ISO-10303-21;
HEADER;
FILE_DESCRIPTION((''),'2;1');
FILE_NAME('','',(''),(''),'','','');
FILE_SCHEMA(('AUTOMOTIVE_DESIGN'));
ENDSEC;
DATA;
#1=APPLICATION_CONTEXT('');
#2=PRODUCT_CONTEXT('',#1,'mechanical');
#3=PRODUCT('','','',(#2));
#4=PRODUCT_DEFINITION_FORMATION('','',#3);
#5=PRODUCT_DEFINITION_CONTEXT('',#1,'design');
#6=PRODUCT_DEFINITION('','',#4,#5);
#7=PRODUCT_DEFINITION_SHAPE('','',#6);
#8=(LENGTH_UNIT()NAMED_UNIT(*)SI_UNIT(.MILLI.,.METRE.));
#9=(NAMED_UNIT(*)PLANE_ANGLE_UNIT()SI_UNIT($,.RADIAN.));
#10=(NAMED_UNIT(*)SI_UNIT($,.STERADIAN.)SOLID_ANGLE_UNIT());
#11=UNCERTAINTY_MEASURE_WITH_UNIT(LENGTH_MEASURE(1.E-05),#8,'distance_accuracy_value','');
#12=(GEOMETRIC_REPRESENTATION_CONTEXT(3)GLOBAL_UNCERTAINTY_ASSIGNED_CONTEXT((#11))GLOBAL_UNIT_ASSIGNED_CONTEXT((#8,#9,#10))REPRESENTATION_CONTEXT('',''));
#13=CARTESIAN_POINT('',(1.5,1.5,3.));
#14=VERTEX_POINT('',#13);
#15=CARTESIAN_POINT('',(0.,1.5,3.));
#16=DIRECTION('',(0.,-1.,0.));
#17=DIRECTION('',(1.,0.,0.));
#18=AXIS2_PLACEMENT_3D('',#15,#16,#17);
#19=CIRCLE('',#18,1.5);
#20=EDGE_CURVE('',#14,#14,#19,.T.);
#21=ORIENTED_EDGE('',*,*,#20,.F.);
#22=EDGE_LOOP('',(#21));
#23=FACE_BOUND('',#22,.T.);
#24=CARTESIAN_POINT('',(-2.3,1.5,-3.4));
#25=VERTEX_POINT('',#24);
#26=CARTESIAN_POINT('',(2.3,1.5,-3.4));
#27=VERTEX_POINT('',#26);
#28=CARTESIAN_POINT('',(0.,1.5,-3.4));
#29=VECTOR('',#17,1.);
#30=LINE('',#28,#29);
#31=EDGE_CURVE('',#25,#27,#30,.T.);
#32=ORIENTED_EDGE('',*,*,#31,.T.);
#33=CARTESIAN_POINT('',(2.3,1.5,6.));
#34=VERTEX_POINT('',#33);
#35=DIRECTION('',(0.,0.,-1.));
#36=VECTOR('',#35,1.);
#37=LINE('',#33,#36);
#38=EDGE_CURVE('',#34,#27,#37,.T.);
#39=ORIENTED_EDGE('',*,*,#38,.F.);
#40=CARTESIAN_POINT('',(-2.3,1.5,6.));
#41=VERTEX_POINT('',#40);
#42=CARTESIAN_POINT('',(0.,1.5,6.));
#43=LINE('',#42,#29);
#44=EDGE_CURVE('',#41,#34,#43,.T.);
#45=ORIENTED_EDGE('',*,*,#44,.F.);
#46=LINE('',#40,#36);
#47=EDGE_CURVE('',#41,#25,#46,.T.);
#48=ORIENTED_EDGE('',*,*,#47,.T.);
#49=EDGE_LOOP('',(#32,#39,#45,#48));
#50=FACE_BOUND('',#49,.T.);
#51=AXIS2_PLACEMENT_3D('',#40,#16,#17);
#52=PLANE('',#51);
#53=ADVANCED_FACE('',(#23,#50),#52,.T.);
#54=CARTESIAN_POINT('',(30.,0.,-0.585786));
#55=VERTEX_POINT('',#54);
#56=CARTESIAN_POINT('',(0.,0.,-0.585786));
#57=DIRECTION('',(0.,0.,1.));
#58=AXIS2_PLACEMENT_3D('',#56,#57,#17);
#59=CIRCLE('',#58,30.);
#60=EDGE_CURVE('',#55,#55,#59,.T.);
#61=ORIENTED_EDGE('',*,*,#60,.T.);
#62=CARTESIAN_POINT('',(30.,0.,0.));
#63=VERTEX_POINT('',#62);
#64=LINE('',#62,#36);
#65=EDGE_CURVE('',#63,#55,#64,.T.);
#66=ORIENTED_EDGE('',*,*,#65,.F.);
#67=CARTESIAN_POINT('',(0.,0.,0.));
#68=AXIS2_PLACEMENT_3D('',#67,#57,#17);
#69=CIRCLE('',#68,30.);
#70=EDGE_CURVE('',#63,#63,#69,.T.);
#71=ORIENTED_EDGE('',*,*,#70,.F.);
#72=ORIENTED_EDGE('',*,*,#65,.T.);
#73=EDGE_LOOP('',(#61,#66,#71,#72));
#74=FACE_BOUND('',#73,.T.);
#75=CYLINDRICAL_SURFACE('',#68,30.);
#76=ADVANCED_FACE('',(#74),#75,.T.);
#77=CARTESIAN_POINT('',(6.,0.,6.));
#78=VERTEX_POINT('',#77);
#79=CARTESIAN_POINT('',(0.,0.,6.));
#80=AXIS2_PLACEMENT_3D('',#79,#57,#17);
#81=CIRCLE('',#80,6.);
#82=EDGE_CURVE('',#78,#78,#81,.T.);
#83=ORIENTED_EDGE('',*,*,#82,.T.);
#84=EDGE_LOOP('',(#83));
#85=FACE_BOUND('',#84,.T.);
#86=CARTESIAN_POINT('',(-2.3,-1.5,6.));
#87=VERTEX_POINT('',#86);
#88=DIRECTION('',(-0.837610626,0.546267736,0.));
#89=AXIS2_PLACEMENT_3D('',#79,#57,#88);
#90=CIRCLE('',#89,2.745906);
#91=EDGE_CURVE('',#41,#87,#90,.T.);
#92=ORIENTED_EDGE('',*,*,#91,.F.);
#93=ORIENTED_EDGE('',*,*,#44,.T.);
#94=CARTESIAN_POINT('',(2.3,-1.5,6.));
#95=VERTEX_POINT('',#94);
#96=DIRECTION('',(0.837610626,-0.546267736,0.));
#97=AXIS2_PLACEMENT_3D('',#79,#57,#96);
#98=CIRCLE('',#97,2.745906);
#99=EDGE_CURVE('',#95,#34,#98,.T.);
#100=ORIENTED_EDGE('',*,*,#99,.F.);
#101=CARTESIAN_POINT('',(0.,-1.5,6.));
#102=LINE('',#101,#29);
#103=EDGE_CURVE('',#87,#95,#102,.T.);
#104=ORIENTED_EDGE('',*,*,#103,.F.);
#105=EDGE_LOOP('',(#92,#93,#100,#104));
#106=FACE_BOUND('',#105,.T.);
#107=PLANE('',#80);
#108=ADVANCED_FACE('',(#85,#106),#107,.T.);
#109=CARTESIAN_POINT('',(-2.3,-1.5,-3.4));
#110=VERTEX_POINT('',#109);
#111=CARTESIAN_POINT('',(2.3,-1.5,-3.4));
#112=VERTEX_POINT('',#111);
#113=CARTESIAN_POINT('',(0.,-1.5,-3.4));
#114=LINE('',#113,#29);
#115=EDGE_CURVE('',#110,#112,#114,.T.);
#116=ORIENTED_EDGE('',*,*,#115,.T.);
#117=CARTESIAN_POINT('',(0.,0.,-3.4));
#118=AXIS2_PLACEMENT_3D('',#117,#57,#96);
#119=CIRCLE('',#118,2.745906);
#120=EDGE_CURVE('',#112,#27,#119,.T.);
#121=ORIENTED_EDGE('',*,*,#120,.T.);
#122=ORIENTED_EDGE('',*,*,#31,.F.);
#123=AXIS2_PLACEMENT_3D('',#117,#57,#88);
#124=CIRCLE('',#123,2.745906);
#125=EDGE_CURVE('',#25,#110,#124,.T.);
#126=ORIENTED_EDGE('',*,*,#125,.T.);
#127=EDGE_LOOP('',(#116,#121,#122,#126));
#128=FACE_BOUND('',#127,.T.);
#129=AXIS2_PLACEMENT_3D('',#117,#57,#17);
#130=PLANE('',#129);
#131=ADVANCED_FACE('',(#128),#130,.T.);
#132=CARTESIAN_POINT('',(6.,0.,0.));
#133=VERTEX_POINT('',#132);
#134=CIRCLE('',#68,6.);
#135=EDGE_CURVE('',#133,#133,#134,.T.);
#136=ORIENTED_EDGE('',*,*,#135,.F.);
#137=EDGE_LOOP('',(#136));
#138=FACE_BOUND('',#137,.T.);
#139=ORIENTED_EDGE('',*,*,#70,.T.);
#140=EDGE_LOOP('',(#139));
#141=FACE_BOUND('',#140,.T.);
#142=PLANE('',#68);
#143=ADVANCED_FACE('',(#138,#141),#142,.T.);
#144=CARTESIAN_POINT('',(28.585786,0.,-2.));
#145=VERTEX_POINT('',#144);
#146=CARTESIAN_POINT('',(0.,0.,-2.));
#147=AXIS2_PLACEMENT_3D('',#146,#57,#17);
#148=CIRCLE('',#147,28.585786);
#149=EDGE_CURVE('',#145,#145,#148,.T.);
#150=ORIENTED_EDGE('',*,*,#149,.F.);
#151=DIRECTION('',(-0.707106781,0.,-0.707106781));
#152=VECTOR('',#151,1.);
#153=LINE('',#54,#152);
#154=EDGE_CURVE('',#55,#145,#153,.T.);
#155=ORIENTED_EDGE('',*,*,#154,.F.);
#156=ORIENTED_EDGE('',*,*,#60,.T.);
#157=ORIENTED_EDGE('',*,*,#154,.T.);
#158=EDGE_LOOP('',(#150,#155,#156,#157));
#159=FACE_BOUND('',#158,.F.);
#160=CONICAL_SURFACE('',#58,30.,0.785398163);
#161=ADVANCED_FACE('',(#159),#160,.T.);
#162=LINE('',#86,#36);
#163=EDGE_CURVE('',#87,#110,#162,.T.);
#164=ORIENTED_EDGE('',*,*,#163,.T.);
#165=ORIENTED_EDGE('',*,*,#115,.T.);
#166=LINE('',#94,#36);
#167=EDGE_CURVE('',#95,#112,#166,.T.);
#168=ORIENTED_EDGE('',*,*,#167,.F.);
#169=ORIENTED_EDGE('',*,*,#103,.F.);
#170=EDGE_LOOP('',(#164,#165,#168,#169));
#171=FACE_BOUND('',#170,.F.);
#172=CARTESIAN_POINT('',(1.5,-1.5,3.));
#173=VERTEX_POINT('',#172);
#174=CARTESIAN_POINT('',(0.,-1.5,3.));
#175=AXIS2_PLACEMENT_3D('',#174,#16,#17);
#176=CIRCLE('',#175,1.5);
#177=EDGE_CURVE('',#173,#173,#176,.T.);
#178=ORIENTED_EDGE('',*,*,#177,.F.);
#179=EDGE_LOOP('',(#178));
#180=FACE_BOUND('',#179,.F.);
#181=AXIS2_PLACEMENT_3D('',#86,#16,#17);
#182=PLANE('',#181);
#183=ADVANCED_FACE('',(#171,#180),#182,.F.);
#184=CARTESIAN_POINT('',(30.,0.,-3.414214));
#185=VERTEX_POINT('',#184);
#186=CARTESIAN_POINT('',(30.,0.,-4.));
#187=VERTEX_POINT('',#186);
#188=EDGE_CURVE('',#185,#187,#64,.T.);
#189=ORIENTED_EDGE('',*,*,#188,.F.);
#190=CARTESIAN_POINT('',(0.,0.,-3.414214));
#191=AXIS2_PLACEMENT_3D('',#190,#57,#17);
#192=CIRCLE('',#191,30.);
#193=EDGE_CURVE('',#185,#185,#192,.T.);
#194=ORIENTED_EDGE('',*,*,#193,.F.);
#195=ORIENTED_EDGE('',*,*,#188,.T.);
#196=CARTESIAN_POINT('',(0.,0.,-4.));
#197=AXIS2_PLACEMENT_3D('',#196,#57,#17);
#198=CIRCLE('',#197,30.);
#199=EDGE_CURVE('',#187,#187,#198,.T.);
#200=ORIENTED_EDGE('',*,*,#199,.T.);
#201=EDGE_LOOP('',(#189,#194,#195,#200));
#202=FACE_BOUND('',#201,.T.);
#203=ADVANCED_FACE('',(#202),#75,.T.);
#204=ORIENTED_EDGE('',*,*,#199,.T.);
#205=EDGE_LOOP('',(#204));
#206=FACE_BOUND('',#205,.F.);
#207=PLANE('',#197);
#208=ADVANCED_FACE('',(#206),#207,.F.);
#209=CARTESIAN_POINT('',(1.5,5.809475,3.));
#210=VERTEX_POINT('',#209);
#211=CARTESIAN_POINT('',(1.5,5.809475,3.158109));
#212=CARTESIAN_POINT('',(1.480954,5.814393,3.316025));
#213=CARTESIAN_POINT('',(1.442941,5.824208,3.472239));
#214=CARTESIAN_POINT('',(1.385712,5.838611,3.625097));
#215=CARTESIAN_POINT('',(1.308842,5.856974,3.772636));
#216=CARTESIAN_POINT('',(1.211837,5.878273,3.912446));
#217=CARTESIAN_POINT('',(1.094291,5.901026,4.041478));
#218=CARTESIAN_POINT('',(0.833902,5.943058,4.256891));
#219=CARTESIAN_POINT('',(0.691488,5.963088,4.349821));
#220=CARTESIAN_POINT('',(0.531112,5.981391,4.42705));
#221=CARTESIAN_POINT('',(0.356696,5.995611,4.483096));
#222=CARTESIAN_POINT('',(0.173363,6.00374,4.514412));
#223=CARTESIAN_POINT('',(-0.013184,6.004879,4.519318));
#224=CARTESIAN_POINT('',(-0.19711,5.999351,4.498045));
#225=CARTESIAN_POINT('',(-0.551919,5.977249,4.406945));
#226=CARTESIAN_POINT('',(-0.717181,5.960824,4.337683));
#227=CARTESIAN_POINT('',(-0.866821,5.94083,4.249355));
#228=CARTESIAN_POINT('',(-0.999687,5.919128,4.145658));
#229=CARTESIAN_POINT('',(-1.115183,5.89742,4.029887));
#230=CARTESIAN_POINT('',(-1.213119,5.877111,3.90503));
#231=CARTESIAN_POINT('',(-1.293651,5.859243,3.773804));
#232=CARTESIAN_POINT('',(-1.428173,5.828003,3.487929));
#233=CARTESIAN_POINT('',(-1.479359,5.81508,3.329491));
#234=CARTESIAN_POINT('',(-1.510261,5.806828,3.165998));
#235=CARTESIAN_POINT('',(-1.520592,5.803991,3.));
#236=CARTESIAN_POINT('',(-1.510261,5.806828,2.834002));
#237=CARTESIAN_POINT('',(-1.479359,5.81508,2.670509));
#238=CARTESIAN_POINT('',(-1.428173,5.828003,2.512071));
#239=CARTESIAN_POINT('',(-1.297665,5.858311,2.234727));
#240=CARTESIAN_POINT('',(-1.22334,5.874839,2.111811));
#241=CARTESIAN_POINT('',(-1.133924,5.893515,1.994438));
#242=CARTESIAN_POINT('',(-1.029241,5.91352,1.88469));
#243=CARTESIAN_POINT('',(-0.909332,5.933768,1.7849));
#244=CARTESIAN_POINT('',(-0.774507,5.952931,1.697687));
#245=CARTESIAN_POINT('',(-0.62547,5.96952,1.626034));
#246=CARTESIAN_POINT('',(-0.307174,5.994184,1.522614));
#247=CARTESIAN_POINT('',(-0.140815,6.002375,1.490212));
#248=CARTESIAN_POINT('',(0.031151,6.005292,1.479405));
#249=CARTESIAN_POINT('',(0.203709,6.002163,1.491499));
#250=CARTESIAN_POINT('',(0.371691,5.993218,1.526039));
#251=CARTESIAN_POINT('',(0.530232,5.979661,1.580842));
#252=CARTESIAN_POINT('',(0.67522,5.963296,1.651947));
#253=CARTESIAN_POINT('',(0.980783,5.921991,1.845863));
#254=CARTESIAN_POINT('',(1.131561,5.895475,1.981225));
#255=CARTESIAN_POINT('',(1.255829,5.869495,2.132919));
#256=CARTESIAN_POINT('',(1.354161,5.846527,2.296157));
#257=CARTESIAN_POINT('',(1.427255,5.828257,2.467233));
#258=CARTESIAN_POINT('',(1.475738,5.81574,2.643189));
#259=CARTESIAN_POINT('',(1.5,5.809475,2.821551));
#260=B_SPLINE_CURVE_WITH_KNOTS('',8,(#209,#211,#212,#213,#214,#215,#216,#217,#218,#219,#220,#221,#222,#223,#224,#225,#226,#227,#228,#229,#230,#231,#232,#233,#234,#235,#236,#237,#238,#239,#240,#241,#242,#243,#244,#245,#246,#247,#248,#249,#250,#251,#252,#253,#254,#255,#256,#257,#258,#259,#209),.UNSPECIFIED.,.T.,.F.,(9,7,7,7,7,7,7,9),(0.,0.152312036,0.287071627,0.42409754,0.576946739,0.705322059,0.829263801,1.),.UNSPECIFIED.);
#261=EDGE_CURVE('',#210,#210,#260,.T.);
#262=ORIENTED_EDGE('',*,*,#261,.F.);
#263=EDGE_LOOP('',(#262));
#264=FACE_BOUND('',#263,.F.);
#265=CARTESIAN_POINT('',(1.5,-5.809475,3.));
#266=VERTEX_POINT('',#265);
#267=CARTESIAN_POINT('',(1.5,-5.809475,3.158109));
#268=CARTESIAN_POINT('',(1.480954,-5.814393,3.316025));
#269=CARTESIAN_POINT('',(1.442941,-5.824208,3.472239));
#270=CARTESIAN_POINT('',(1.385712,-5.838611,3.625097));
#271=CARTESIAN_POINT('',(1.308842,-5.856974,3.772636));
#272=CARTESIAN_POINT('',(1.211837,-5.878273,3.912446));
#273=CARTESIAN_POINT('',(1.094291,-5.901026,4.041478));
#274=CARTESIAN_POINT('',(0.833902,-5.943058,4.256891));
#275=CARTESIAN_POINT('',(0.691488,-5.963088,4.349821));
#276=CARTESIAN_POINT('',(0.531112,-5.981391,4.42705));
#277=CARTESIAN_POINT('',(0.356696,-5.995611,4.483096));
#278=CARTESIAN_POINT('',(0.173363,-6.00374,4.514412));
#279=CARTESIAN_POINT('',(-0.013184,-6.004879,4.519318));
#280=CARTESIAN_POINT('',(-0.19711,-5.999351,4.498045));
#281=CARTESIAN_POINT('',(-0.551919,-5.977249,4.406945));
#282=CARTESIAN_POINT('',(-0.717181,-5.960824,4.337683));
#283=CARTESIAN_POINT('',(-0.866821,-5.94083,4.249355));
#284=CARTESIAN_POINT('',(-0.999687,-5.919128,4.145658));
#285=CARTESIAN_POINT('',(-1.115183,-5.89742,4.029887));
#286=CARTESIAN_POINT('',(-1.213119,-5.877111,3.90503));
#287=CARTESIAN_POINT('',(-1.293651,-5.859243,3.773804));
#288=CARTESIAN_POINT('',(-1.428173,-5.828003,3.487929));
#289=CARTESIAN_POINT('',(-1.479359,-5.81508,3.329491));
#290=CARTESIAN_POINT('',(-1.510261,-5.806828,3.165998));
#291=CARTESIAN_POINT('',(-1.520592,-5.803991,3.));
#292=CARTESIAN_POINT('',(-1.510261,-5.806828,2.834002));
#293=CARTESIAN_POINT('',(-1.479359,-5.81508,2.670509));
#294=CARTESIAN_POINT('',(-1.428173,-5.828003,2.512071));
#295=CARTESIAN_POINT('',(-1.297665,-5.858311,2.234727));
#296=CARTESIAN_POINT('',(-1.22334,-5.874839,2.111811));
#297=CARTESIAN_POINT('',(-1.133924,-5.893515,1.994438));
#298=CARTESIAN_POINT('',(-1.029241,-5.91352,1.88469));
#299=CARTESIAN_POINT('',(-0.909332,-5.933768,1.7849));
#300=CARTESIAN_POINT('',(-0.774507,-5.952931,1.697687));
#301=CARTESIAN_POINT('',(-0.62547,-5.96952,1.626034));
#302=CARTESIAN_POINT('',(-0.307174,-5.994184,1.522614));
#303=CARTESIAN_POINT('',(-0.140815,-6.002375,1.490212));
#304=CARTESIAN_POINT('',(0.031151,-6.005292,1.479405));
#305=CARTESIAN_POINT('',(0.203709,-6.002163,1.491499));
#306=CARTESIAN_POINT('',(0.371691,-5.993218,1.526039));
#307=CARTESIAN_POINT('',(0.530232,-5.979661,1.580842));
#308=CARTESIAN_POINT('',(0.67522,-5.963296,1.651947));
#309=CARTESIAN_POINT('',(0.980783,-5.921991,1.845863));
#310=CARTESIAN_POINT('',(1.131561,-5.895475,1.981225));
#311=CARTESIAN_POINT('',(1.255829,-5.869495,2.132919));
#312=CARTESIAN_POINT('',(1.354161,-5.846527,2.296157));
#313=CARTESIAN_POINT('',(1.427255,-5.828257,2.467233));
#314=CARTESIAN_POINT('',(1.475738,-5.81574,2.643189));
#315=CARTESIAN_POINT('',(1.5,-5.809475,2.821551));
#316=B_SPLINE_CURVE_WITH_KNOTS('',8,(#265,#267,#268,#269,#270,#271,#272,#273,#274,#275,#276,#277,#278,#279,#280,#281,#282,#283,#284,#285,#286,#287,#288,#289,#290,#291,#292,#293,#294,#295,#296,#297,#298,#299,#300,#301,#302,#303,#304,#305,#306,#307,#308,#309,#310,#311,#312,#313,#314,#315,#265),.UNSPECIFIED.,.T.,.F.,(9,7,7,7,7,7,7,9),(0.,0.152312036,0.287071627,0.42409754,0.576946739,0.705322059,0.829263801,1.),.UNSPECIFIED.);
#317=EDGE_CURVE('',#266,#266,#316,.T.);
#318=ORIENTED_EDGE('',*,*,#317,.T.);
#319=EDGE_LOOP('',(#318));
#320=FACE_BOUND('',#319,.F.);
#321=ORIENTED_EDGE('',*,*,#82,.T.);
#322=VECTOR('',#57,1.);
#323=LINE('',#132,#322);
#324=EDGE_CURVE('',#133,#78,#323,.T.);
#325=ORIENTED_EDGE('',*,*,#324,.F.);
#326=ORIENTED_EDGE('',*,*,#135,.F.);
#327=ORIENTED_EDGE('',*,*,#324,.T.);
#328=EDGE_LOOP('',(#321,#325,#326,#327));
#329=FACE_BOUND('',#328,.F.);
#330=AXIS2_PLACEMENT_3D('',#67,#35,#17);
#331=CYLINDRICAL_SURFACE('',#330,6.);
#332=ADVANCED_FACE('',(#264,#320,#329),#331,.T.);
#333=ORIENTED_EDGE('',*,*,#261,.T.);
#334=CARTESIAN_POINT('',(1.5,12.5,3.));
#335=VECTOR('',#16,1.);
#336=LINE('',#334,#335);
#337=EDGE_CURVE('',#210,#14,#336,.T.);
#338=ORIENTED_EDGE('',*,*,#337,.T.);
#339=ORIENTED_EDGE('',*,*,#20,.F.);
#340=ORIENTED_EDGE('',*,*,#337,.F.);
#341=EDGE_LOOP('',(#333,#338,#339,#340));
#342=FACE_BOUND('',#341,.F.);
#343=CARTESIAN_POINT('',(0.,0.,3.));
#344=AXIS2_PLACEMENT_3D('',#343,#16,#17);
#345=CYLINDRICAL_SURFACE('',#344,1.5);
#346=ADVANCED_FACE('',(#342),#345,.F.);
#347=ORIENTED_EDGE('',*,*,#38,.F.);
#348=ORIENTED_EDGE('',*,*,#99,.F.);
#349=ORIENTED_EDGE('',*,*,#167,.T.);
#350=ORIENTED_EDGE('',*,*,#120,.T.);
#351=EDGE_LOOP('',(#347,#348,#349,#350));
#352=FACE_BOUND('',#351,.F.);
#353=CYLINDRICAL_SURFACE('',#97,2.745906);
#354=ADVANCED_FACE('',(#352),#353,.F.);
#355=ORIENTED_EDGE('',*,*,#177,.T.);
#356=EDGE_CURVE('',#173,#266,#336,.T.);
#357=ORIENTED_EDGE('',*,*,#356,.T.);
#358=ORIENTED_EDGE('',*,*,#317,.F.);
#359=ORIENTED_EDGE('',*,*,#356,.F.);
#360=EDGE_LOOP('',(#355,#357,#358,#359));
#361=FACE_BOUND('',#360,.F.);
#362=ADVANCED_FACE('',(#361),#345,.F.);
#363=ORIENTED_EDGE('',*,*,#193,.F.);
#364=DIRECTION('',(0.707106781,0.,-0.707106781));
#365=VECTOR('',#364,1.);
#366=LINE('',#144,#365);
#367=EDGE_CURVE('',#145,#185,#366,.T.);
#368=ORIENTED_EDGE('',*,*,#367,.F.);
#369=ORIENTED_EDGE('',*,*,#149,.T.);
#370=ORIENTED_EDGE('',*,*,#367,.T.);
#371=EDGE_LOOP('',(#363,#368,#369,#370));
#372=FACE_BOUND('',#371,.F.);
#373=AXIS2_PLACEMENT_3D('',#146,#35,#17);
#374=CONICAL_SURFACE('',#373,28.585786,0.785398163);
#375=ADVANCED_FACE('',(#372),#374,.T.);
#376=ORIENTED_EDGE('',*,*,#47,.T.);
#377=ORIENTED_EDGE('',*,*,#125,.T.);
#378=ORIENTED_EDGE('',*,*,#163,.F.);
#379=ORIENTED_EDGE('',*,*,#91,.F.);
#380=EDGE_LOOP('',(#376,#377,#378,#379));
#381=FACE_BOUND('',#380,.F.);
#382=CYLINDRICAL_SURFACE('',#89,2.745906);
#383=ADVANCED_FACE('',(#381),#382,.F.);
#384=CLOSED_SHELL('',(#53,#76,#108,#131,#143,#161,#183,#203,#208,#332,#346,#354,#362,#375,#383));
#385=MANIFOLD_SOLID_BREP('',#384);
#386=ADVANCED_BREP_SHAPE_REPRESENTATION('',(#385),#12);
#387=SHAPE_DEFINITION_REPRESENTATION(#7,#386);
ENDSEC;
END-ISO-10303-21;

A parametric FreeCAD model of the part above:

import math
import FreeCAD as App
import Part
import Sketcher

V = App.Vector

doc = App.newDocument("Part")
params = doc.addObject("Spreadsheet::Sheet", "Params")
for row, (alias, value) in enumerate([
    ("sketch1_diameter", "60 mm"),
    ("pad1_length", "4 mm"),
    ("sketch2_diameter", "12 mm"),
    ("pad2_length", "6 mm"),
    ("sketch3_diameter", "3 mm"),
    ("pocket1_length", "25 mm"),
    ("sketch4_width", "4.6 mm"),
    ("pocket2_length", "9.4 mm"),
    ("sketch5_length", "2.000001 mm"),
    ("groove_angle", "360 deg"),
], start=1):
    params.set(f"A{row}", alias)
    params.set(f"B{row}", "=" + value)
    params.setAlias(f"B{row}", alias)

body = doc.addObject("PartDesign::Body", "Body")

# Sketch on XY plane
sketch1 = doc.addObject("Sketcher::SketchObject", "Sketch")
body.addObject(sketch1)
sketch1.AttachmentSupport = (doc.XY_Plane, [""])
sketch1.MapMode = "FlatFace"
sketch1.addGeometry(Part.Circle(V(0, 0, 0), V(0, 0, 1), 30), False)
sketch1.addConstraint([
    Sketcher.Constraint("Coincident", 0, 3, -1, 1),
    Sketcher.Constraint("Diameter", 0, 60.0),
])
sketch1.setExpression("Constraints[1]", "Params.sketch1_diameter")
pad1 = doc.addObject("PartDesign::Pad", "Pad")
body.addObject(pad1)
pad1.Profile = sketch1
pad1.setExpression("Length", "Params.pad1_length")
pad1.Reversed = True

# Sketch on XY plane
sketch2 = doc.addObject("Sketcher::SketchObject", "Sketch001")
body.addObject(sketch2)
sketch2.AttachmentSupport = (doc.XY_Plane, [""])
sketch2.MapMode = "FlatFace"
sketch2.addGeometry(Part.Circle(V(0, 0, 0), V(0, 0, 1), 6), False)
sketch2.addConstraint([
    Sketcher.Constraint("Coincident", 0, 3, -1, 1),
    Sketcher.Constraint("Diameter", 0, 12.0),
])
sketch2.setExpression("Constraints[1]", "Params.sketch2_diameter")
pad2 = doc.addObject("PartDesign::Pad", "Pad001")
body.addObject(pad2)
pad2.Profile = sketch2
pad2.setExpression("Length", "Params.pad2_length")

# Sketch on XZ plane
sketch3 = doc.addObject("Sketcher::SketchObject", "Sketch002")
body.addObject(sketch3)
sketch3.AttachmentSupport = (doc.XZ_Plane, [""])
sketch3.MapMode = "FlatFace"
sketch3.addGeometry(Part.Circle(V(0, 3, 0), V(0, 0, 1), 1.5), False)
sketch3.addConstraint([
    Sketcher.Constraint("PointOnObject", 0, 3, -2),
    Sketcher.Constraint("Diameter", 0, 3.0),
    Sketcher.Constraint("DistanceY", -1, 1, 0, 3, 3.0),
])
sketch3.setExpression("Constraints[1]", "Params.sketch3_diameter")
pocket1 = doc.addObject("PartDesign::Pocket", "Pocket")
body.addObject(pocket1)
pocket1.Profile = sketch3
pocket1.setExpression("Length", "Params.pocket1_length")
pocket1.Midplane = True

# Sketch on XY plane
sketch4 = doc.addObject("Sketcher::SketchObject", "Sketch003")
body.addObject(sketch4)
sketch4.AttachmentSupport = (doc.XY_Plane, [""])
sketch4.MapMode = "FlatFace"
sketch4.AttachmentOffset = App.Placement(V(0, 0, 6), App.Rotation())
sketch4.addGeometry([
    Part.LineSegment(V(-2.3, -1.5, 0), V(2.3, -1.5, 0)),
    Part.ArcOfCircle(Part.Circle(V(0, 0, 0), V(0, 0, 1), 2.7), math.radians(-33), math.radians(33)),
    Part.LineSegment(V(2.3, 1.5, 0), V(-2.3, 1.5, 0)),
    Part.ArcOfCircle(Part.Circle(V(0, 0, 0), V(0, 0, 1), 2.7), math.radians(147), math.radians(213)),
], False)
sketch4.addConstraint([
    Sketcher.Constraint("Coincident", 0, 2, 1, 1),
    Sketcher.Constraint("Coincident", 1, 2, 2, 1),
    Sketcher.Constraint("Coincident", 2, 2, 3, 1),
    Sketcher.Constraint("Coincident", 3, 2, 0, 1),
    Sketcher.Constraint("Horizontal", 0),
    Sketcher.Constraint("Horizontal", 2),
    Sketcher.Constraint("Coincident", 1, 3, -1, 1),
    Sketcher.Constraint("Coincident", 3, 3, -1, 1),
    Sketcher.Constraint("Equal", 1, 3),
    Sketcher.Constraint("Vertical", 0, 2, 1, 2),
    Sketcher.Constraint("DistanceX", 0, 1, 0, 2, 4.6),
    Sketcher.Constraint("DistanceY", 0, 2, 1, 2, 3.0),
])
sketch4.setExpression("Constraints[10]", "Params.sketch4_width")
pocket2 = doc.addObject("PartDesign::Pocket", "Pocket001")
body.addObject(pocket2)
pocket2.Profile = sketch4
pocket2.setExpression("Length", "Params.pocket2_length")

# Sketch on XZ plane
sketch5 = doc.addObject("Sketcher::SketchObject", "Sketch004")
body.addObject(sketch5)
sketch5.AttachmentSupport = (doc.XZ_Plane, [""])
sketch5.MapMode = "FlatFace"
sketch5.addGeometry([
    Part.LineSegment(V(30, -3.4, 0), V(30, -0.6, 0)),
    Part.LineSegment(V(30, -0.6, 0), V(28.6, -2, 0)),
    Part.LineSegment(V(28.6, -2, 0), V(30, -3.4, 0)),
], False)
sketch5.addConstraint([
    Sketcher.Constraint("Coincident", 0, 2, 1, 1),
    Sketcher.Constraint("Coincident", 1, 2, 2, 1),
    Sketcher.Constraint("Coincident", 2, 2, 0, 1),
    Sketcher.Constraint("Vertical", 0),
    Sketcher.Constraint("Perpendicular", 1, 2),
    Sketcher.Constraint("Equal", 1, 2),
    Sketcher.Constraint("Distance", 1, 2.000001),
    Sketcher.Constraint("DistanceX", -1, 1, 0, 2, 30.0),
    Sketcher.Constraint("DistanceY", 1, 2, -1, 1, 2.0),
])
sketch5.setExpression("Constraints[6]", "Params.sketch5_length")
groove = doc.addObject("PartDesign::Groove", "Groove")
body.addObject(groove)
groove.Profile = sketch5
groove.ReferenceAxis = (sketch5, ["V_Axis"])
groove.setExpression("Angle", "Params.groove_angle")

doc.recompute()
